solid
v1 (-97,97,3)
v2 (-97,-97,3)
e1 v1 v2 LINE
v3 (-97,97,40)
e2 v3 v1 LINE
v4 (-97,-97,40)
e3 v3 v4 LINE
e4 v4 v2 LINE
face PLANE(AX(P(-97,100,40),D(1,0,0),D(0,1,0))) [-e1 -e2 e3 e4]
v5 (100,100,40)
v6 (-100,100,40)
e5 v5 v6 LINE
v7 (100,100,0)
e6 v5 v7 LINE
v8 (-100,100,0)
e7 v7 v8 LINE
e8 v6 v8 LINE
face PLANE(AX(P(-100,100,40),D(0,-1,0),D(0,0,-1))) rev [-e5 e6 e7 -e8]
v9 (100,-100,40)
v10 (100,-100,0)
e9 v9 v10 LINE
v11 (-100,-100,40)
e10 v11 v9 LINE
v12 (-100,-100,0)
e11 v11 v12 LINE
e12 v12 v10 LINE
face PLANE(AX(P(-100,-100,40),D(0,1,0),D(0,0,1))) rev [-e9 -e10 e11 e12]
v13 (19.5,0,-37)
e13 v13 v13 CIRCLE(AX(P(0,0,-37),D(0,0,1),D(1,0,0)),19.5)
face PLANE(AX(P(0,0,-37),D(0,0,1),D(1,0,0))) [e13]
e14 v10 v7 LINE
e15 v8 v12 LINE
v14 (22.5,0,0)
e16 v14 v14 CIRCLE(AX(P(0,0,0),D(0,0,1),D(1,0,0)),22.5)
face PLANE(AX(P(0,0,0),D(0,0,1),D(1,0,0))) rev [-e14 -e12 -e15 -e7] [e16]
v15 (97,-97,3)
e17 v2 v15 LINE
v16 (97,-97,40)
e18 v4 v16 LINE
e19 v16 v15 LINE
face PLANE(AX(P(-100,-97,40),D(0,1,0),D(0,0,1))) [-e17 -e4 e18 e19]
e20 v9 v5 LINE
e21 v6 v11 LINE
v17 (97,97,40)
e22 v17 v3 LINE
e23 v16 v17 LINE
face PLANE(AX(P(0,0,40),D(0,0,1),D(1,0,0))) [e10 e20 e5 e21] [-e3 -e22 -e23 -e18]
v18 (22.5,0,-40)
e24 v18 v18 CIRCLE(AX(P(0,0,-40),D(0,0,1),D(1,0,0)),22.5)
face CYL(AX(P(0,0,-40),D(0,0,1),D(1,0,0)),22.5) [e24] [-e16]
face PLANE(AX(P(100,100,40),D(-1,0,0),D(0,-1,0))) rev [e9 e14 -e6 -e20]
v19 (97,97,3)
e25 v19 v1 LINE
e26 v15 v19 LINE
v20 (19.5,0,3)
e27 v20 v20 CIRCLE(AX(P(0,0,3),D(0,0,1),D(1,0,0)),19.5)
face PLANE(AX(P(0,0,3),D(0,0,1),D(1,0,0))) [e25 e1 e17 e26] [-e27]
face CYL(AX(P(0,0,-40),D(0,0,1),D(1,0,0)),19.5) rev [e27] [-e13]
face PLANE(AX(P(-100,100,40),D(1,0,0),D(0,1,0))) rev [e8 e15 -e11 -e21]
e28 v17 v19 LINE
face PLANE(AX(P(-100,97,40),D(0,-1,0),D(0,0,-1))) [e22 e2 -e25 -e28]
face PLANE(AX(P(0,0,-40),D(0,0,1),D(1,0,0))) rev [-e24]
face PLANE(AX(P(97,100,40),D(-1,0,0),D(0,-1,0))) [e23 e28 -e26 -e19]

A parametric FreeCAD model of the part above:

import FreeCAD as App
import Part
import Sketcher


def faces_at(feature, points):
    """Names of the faces that lie closest to the given points."""
    faces = feature.Shape.Faces
    near = lambda p: min(range(len(faces)), key=lambda i: faces[i].distToShape(Part.Vertex(*p))[0])
    return sorted({f"Face{near(p) + 1}" for p in points})


def add_polygon(sketch, points):
    """Adds a closed chain of lines whose ends are joined by coincident constraints."""
    first, n = sketch.GeometryCount, len(points)
    for a, b in zip(points, points[1:] + points[:1]):
        sketch.addGeometry(Part.LineSegment(App.Vector(*a, 0), App.Vector(*b, 0)), False)
    for i in range(n):
        sketch.addConstraint(Sketcher.Constraint("Coincident", first + i, 2, first + (i + 1) % n, 1))

doc = App.newDocument("Part")
body = doc.addObject("PartDesign::Body", "Body")

# Sketch on XY plane
sketch1 = body.newObject("Sketcher::SketchObject", "Sketch")
sketch1.AttachmentSupport = (doc.getObject("XY_Plane"), [""])
sketch1.MapMode = "FlatFace"
add_polygon(sketch1, [(-100, 100), (-100, -100), (100, -100), (100, 100)])  # lines 0-3
sketch1.addConstraint([
    Sketcher.Constraint("Vertical", 0),
    Sketcher.Constraint("Horizontal", 1),
    Sketcher.Constraint("Vertical", 2),
    Sketcher.Constraint("Horizontal", 3),
    Sketcher.Constraint("Symmetric", 0, 2, 2, 2, -1, 1),
    Sketcher.Constraint("Equal", 3, 0),
    Sketcher.Constraint("DistanceX", 1, 1, 1, 2, 200.0),
])
pad1 = body.newObject("PartDesign::Pad", "Pad")
pad1.Profile = sketch1
pad1.Length = 40

# Sketch on XY plane
sketch2 = body.newObject("Sketcher::SketchObject", "Sketch001")
sketch2.AttachmentSupport = (doc.getObject("XY_Plane"), [""])
sketch2.MapMode = "FlatFace"
sketch2.addGeometry(Part.Circle(App.Vector(0, 0, 0), App.Vector(0, 0, 1), 22.5), False)
sketch2.addConstraint([
    Sketcher.Constraint("Coincident", 0, 3, -1, 1),
    Sketcher.Constraint("Diameter", 0, 45.0),
])
pad2 = body.newObject("PartDesign::Pad", "Pad001")
pad2.Profile = sketch2
pad2.Length = 40
pad2.Reversed = True
doc.recompute()

thickness = body.newObject("PartDesign::Thickness", "Thickness")
thickness.Base = (pad2, faces_at(pad2, [(0, 0, 40)]))
thickness.Value = 3
thickness.Reversed = True
thickness.Join = "Intersection"

doc.recompute()
